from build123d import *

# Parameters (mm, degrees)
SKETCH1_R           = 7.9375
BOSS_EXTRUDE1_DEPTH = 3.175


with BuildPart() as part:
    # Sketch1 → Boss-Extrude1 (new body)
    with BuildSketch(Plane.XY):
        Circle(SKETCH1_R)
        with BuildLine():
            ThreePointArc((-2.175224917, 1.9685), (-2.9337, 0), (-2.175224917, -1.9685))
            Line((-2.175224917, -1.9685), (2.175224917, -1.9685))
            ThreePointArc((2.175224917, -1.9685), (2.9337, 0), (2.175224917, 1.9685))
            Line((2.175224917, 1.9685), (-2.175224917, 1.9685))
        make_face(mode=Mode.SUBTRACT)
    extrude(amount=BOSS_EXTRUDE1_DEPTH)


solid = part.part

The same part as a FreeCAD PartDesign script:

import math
import FreeCAD as App
import Part
import Sketcher
from FreeCAD import Vector
Q = App.Units.Quantity

doc = App.newDocument("Part")
body = doc.addObject("PartDesign::Body", "Body")

# Sketch on XY plane
sketch1 = doc.addObject("Sketcher::SketchObject", "Sketch")
body.addObject(sketch1)
sketch1.AttachmentSupport = (doc.XY_Plane, [""])
sketch1.MapMode = "FlatFace"
sketch1.addGeometry([
    Part.Circle(Vector(0, 0, 0), Vector(0, 0, 1), 7.9),  # 0
    Part.ArcOfCircle(Part.Circle(Vector(0, 0, 0), Vector(0, 0, 1), 2.9), math.radians(138), math.radians(222)),  # 1
    Part.LineSegment(Vector(-2.2, 2, 0), Vector(2.2, 2, 0)),  # 2
    Part.ArcOfCircle(Part.Circle(Vector(0, 0, 0), Vector(0, 0, 1), 2.9), math.radians(-42), math.radians(42)),  # 3
    Part.LineSegment(Vector(2.2, -2, 0), Vector(-2.2, -2, 0)),  # 4
], False)
sketch1.addConstraint([
    Sketcher.Constraint("Coincident", 1, 1, 2, 1),
    Sketcher.Constraint("Coincident", 2, 2, 3, 2),
    Sketcher.Constraint("Coincident", 3, 1, 4, 1),
    Sketcher.Constraint("Coincident", 4, 2, 1, 2),
    Sketcher.Constraint("Horizontal", 2),
    Sketcher.Constraint("Horizontal", 4),
    Sketcher.Constraint("Coincident", 0, 3, -1, 1),
    Sketcher.Constraint("Coincident", 1, 3, -1, 1),
    Sketcher.Constraint("Coincident", 3, 3, -1, 1),
    Sketcher.Constraint("Equal", 1, 3),
    Sketcher.Constraint("Vertical", 2, 2, 3, 1),
    Sketcher.Constraint("Diameter", 0, Q("0.625 in")),
    Sketcher.Constraint("Radius", 1, Q("0.1155 in")),
    Sketcher.Constraint("DistanceY", 3, 1, 2, 2, Q("0.155 in")),
])
pad1 = doc.addObject("PartDesign::Pad", "Pad")
body.addObject(pad1)
pad1.Profile = sketch1
pad1.Length = Q("0.125 in")

doc.recompute()
